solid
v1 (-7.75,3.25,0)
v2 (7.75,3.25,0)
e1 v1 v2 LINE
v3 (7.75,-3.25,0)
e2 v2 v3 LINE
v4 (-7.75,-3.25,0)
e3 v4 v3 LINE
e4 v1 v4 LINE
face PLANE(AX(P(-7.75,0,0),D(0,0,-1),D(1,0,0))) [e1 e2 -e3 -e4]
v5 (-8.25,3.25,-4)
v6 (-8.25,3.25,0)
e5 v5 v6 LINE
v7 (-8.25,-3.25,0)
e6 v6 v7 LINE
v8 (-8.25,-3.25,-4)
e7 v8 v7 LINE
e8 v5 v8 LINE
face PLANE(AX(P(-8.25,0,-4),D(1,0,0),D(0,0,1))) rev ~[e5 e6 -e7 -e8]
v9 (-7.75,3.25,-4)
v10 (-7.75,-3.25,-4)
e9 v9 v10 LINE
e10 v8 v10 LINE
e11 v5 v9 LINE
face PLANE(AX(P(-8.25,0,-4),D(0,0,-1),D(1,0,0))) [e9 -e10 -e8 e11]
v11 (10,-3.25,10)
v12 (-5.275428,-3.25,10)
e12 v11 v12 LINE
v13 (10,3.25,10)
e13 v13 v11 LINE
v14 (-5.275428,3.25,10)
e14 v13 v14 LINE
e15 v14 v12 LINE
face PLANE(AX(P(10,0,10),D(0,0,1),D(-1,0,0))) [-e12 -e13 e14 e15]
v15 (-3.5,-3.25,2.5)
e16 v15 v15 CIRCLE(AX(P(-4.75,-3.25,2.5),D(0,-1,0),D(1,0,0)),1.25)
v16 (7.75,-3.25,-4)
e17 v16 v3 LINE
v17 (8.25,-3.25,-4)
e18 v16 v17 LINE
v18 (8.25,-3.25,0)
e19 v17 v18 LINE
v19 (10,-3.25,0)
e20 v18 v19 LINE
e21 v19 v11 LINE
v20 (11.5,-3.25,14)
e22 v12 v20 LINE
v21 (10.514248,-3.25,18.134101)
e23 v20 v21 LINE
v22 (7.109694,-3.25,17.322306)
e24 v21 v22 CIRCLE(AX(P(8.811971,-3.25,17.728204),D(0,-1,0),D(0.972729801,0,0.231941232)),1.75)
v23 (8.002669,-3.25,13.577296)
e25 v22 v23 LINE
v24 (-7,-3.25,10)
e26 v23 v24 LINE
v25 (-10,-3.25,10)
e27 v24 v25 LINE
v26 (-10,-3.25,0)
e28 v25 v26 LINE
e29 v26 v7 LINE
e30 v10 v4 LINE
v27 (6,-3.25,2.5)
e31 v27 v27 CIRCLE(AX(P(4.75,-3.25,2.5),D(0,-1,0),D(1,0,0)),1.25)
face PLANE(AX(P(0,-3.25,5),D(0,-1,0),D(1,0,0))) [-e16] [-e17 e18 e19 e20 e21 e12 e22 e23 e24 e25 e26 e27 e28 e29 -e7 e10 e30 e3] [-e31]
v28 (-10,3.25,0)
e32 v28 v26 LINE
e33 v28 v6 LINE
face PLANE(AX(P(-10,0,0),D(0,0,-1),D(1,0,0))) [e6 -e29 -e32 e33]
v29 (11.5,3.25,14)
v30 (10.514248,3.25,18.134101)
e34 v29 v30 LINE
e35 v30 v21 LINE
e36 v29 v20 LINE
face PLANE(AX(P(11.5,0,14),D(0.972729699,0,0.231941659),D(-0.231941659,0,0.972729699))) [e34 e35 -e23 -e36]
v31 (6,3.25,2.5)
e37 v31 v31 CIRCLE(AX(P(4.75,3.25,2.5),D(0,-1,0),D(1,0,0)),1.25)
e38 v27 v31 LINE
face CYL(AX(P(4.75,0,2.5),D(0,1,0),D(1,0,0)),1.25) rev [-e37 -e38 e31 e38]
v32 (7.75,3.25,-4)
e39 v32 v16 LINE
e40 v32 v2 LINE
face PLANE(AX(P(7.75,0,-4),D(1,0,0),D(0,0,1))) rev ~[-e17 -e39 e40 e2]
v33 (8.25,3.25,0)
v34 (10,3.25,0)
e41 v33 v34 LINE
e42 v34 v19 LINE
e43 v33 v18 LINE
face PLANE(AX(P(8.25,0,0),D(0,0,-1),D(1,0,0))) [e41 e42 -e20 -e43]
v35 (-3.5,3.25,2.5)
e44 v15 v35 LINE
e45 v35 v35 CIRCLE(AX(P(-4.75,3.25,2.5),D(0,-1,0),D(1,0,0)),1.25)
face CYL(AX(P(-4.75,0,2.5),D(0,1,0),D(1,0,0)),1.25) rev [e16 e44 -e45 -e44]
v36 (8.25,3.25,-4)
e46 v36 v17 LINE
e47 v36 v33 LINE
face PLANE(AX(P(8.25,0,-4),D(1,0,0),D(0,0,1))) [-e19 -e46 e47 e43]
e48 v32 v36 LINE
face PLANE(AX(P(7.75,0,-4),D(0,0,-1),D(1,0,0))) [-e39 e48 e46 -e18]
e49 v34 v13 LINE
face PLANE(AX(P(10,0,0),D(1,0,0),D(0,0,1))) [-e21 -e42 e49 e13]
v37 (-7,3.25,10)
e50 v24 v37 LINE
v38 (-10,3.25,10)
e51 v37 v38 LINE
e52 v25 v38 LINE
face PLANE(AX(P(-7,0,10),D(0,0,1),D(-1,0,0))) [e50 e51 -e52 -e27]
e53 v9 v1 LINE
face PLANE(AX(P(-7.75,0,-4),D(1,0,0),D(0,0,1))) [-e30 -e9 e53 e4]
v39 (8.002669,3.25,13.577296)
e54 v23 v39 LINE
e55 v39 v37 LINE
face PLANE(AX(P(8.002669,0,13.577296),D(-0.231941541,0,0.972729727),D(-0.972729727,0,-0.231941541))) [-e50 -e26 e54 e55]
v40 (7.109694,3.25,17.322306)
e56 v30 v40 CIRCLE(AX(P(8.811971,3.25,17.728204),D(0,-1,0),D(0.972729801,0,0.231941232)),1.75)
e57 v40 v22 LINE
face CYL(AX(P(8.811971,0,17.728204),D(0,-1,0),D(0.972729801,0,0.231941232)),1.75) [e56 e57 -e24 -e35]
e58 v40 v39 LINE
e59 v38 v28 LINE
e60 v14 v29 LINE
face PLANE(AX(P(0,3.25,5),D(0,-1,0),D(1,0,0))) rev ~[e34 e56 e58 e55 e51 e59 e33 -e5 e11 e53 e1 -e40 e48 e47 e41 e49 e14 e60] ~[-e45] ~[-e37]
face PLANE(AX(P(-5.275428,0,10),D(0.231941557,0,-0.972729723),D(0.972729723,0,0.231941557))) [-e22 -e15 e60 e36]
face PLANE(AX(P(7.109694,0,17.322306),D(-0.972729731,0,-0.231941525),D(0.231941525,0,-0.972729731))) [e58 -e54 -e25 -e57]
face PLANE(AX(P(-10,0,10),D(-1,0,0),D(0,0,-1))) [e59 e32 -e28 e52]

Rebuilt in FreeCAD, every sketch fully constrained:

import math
import FreeCAD as App
import Part
import Sketcher
from FreeCAD import Vector
Q = App.Units.Quantity

doc = App.newDocument("Part")
body = doc.addObject("PartDesign::Body", "Body")

sketch1 = body.newObject("Sketcher::SketchObject", "Sketch")
sketch1.AttachmentSupport = (doc.getObject("XZ_Plane"), [""])
sketch1.MapMode = "FlatFace"
sketch1.addGeometry([
    Part.LineSegment(Vector(-10, 10, 0), Vector(-10, 0, 0)),
    Part.LineSegment(Vector(-10, 0, 0), Vector(-8.2, 0, 0)),
    Part.LineSegment(Vector(-8.2, 0, 0), Vector(-8.2, -4, 0)),
    Part.LineSegment(Vector(-8.2, -4, 0), Vector(-7.8, -4, 0)),
    Part.LineSegment(Vector(-7.8, -4, 0), Vector(-7.8, 0, 0)),
    Part.LineSegment(Vector(-7.8, 0, 0), Vector(7.8, 0, 0)),
    Part.LineSegment(Vector(7.8, 0, 0), Vector(7.8, -4, 0)),
    Part.LineSegment(Vector(7.8, -4, 0), Vector(8.2, -4, 0)),
    Part.LineSegment(Vector(8.2, -4, 0), Vector(8.2, 0, 0)),
    Part.LineSegment(Vector(8.2, 0, 0), Vector(10, 0, 0)),
    Part.LineSegment(Vector(10, 0, 0), Vector(10, 10, 0)),
    Part.LineSegment(Vector(10, 10, 0), Vector(-5.3, 10, 0)),
    Part.LineSegment(Vector(-5.3, 10, 0), Vector(11.5, 14, 0)),
    Part.LineSegment(Vector(11.5, 14, 0), Vector(10.5, 18.1, 0)),
    Part.ArcOfCircle(Part.Circle(Vector(8.8, 17.7, 0), Vector(0, 0, 1), 1.7), math.radians(13), math.radians(193)),
    Part.LineSegment(Vector(7.1, 17.3, 0), Vector(8, 13.6, 0)),
    Part.LineSegment(Vector(8, 13.6, 0), Vector(-7, 10, 0)),
    Part.LineSegment(Vector(-7, 10, 0), Vector(-10, 10, 0)),
    Part.Circle(Vector(-4.8, 2.5, 0), Vector(0, 0, 1), 1.2),
    Part.Circle(Vector(4.8, 2.5, 0), Vector(0, 0, 1), 1.2),
], False)
sketch1.addConstraint([
    Sketcher.Constraint("Coincident", 0, 2, 1, 1),
    Sketcher.Constraint("Coincident", 1, 2, 2, 1),
    Sketcher.Constraint("Coincident", 2, 2, 3, 1),
    Sketcher.Constraint("Coincident", 3, 2, 4, 1),
    Sketcher.Constraint("Coincident", 4, 2, 5, 1),
    Sketcher.Constraint("Coincident", 5, 2, 6, 1),
    Sketcher.Constraint("Coincident", 6, 2, 7, 1),
    Sketcher.Constraint("Coincident", 7, 2, 8, 1),
    Sketcher.Constraint("Coincident", 8, 2, 9, 1),
    Sketcher.Constraint("Coincident", 9, 2, 10, 1),
    Sketcher.Constraint("Coincident", 10, 2, 11, 1),
    Sketcher.Constraint("Coincident", 11, 2, 12, 1),
    Sketcher.Constraint("Coincident", 12, 2, 13, 1),
    Sketcher.Constraint("Tangent", 13, 2, 14, 1),
    Sketcher.Constraint("Tangent", 14, 2, 15, 1),
    Sketcher.Constraint("Coincident", 15, 2, 16, 1),
    Sketcher.Constraint("Coincident", 16, 2, 17, 1),
    Sketcher.Constraint("Coincident", 17, 2, 0, 1),
    Sketcher.Constraint("Vertical", 0),
    Sketcher.Constraint("Horizontal", 1),
    Sketcher.Constraint("Vertical", 2),
    Sketcher.Constraint("Horizontal", 3),
    Sketcher.Constraint("Vertical", 4),
    Sketcher.Constraint("Horizontal", 5),
    Sketcher.Constraint("Vertical", 6),
    Sketcher.Constraint("Horizontal", 7),
    Sketcher.Constraint("Vertical", 8),
    Sketcher.Constraint("Horizontal", 9),
    Sketcher.Constraint("Vertical", 10),
    Sketcher.Constraint("Horizontal", 11),
    Sketcher.Constraint("Horizontal", 17),
    Sketcher.Constraint("Equal", 18, 19),
    Sketcher.Constraint("Symmetric", 4, 2, 5, 2, -1, 1),
    Sketcher.Constraint("Symmetric", 1, 2, 8, 2, -1, 1),
    Sketcher.Constraint("Symmetric", 18, 3, 19, 3, -2),
    Sketcher.Constraint("Symmetric", 0, 2, 9, 2, -2),
    Sketcher.Constraint("Perpendicular", 12, 13),
    Sketcher.Constraint("Parallel", 13, 15),
    Sketcher.Constraint("Perpendicular", 15, 16),
    Sketcher.Constraint("Horizontal", 3, 2, 6, 2),
    Sketcher.Constraint("Horizontal", 11, 2, 16, 2),
    Sketcher.Constraint("Diameter", 18, Q("2.5 mm")),
    Sketcher.Constraint("DistanceX", 17, 2, 17, 1, Q("3 mm")),
    Sketcher.Constraint("DistanceY", 0, 2, 0, 1, Q("10 mm")),
    Sketcher.Constraint("DistanceY", 2, 2, 2, 1, Q("4 mm")),
    Sketcher.Constraint("Radius", 14, Q("1.75 mm")),
    Sketcher.Constraint("DistanceX", 3, 1, 3, 2, Q("0.5 mm")),
    Sketcher.Constraint("DistanceX", 5, 1, 5, 2, Q("15.5 mm")),
    Sketcher.Constraint("DistanceX", 0, 2, -1, 1, Q("10 mm")),
    Sketcher.Constraint("DistanceY", -1, 1, 12, 2, Q("14 mm")),
    Sketcher.Constraint("DistanceX", 1, 2, 19, 3, Q("13 mm")),
    Sketcher.Constraint("DistanceY", -1, 1, 18, 3, Q("2.5 mm")),
    Sketcher.Constraint("DistanceX", -1, 1, 12, 2, Q("11.5 mm")),
    Sketcher.Constraint("Distance", 13, Q("4.25 mm")),
    Sketcher.Constraint("Distance", 15, Q("3.850001 mm")),
])
pad1 = body.newObject("PartDesign::Pad", "Pad")
pad1.Profile = sketch1
pad1.Length = 6.5
pad1.Midplane = True

doc.recompute()
